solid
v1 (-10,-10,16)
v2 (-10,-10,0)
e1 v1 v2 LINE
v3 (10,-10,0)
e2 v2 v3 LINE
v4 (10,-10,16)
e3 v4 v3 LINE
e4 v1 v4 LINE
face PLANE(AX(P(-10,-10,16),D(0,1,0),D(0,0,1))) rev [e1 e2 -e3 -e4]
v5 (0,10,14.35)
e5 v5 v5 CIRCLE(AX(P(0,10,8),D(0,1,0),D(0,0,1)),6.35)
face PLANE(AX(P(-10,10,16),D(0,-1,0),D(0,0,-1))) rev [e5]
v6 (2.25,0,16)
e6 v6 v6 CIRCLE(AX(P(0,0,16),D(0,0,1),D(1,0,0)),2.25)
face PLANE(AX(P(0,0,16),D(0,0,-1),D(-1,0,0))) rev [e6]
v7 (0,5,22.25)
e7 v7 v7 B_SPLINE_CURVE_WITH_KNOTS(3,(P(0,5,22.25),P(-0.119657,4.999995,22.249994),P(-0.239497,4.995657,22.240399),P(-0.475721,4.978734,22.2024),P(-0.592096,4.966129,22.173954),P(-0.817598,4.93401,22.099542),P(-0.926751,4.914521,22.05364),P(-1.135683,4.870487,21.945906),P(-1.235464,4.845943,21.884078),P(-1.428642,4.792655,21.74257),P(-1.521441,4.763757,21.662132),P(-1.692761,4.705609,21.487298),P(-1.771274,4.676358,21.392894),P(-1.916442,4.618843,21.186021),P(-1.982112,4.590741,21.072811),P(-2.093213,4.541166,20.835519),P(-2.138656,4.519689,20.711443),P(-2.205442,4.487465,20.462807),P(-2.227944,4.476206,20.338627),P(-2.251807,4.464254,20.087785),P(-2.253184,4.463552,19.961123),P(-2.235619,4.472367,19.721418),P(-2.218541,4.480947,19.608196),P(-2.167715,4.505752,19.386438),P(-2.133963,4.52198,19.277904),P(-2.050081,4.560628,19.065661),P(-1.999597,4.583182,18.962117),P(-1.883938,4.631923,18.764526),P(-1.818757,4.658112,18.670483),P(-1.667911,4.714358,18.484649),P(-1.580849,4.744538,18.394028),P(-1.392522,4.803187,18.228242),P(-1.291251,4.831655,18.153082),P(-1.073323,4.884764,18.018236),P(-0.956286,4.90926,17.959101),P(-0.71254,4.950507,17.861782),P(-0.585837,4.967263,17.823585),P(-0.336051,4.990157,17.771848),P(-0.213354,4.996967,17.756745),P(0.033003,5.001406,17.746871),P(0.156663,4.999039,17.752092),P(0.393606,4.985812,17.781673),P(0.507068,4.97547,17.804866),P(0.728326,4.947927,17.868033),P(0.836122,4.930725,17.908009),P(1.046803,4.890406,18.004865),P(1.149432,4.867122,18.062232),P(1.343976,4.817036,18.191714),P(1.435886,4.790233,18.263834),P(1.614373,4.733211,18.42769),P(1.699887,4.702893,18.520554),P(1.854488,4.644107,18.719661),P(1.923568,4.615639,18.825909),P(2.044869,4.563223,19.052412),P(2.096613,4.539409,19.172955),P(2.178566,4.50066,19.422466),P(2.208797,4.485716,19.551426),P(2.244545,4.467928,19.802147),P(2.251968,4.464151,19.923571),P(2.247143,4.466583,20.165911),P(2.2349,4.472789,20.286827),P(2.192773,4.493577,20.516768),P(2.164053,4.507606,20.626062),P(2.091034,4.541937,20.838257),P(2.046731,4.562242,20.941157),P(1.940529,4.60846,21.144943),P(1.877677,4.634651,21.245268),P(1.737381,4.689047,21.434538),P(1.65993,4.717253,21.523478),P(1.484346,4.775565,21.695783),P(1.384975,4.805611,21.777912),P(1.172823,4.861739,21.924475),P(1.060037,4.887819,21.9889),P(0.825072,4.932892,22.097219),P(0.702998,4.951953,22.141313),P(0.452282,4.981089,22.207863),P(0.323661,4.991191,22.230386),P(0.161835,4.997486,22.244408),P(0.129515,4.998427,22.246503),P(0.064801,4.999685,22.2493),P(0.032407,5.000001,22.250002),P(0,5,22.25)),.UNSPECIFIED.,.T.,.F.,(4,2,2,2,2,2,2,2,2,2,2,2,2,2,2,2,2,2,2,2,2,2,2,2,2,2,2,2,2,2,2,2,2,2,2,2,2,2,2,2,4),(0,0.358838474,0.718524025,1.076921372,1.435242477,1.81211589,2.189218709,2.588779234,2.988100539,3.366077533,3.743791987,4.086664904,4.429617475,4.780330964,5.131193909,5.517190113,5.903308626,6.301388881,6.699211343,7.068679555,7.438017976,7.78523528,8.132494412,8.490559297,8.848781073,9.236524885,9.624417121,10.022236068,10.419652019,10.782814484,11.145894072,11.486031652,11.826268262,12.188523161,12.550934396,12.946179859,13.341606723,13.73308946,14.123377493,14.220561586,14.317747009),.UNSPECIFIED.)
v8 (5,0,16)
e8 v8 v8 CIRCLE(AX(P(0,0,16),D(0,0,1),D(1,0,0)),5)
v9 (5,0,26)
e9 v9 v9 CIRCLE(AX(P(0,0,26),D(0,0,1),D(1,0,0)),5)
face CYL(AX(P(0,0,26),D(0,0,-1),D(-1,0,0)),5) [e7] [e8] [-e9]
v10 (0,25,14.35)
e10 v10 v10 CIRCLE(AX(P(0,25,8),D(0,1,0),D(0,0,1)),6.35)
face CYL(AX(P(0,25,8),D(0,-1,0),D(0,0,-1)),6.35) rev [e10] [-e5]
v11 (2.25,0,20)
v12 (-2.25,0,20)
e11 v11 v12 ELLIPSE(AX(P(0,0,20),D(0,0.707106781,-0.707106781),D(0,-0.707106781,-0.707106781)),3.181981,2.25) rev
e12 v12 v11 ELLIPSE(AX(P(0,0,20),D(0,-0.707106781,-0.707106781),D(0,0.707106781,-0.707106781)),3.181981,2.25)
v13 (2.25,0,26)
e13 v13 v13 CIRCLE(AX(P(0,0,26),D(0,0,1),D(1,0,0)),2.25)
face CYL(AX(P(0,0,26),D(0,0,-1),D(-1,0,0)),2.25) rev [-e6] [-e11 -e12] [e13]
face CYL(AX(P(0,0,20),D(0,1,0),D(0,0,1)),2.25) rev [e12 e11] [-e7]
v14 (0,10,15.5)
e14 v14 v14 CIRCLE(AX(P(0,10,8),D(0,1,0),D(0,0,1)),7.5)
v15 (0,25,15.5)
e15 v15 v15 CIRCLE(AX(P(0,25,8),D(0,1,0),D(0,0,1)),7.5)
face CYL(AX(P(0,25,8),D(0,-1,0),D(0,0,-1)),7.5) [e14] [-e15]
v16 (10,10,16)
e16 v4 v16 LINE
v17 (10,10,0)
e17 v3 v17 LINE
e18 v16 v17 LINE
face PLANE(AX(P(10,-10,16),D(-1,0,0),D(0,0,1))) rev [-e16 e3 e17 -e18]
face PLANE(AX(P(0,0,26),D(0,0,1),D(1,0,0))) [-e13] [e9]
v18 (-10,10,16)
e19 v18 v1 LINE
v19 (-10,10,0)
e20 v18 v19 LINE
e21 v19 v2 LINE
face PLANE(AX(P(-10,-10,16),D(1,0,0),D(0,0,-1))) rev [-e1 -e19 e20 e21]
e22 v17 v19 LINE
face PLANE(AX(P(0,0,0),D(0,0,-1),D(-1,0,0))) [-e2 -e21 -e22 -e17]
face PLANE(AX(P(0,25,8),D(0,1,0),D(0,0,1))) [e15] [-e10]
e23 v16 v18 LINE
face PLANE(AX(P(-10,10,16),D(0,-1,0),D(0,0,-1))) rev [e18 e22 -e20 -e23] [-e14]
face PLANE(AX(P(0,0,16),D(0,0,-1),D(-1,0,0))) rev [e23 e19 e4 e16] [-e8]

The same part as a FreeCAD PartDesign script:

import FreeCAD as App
import Part
import Sketcher

V = App.Vector

doc = App.newDocument("Part")
body = doc.addObject("PartDesign::Body", "Body")

sketch1 = doc.addObject("Sketcher::SketchObject", "Sketch")
body.addObject(sketch1)
sketch1.AttachmentSupport = (doc.XY_Plane, [""])
sketch1.MapMode = "FlatFace"
sketch1.addGeometry([
    Part.LineSegment(V(-10, 10, 0), V(-10, -10, 0)),
    Part.LineSegment(V(-10, -10, 0), V(10, -10, 0)),
    Part.LineSegment(V(10, -10, 0), V(10, 10, 0)),
    Part.LineSegment(V(10, 10, 0), V(-10, 10, 0)),
], False)
sketch1.addConstraint([
    Sketcher.Constraint("Coincident", 0, 2, 1, 1),
    Sketcher.Constraint("Coincident", 1, 2, 2, 1),
    Sketcher.Constraint("Coincident", 2, 2, 3, 1),
    Sketcher.Constraint("Coincident", 3, 2, 0, 1),
    Sketcher.Constraint("Vertical", 0),
    Sketcher.Constraint("Horizontal", 1),
    Sketcher.Constraint("Vertical", 2),
    Sketcher.Constraint("Horizontal", 3),
    Sketcher.Constraint("Symmetric", 0, 2, 2, 2, -1, 1),
    Sketcher.Constraint("Equal", 3, 0),
    Sketcher.Constraint("DistanceX", 1, 1, 1, 2, 20.0),
])
pad1 = doc.addObject("PartDesign::Pad", "Pad")
body.addObject(pad1)
pad1.Profile = sketch1
pad1.Length = 16

sketch2 = doc.addObject("Sketcher::SketchObject", "Sketch001")
body.addObject(sketch2)
sketch2.AttachmentSupport = (doc.XY_Plane, [""])
sketch2.MapMode = "FlatFace"
sketch2.AttachmentOffset = App.Placement(V(0, 0, 16), App.Rotation())
sketch2.addGeometry([
    Part.Circle(V(0, 0, 0), V(0, 0, 1), 5),
    Part.Circle(V(0, 0, 0), V(0, 0, 1), 2.2),
], False)
sketch2.addConstraint([
    Sketcher.Constraint("Coincident", 0, 3, -1, 1),
    Sketcher.Constraint("Coincident", 1, 3, -1, 1),
    Sketcher.Constraint("Diameter", 0, 10.0),
    Sketcher.Constraint("Diameter", 1, 4.5),
])
pad2 = doc.addObject("PartDesign::Pad", "Pad001")
body.addObject(pad2)
pad2.Profile = sketch2
pad2.Length = 10

sketch3 = doc.addObject("Sketcher::SketchObject", "Sketch002")
body.addObject(sketch3)
sketch3.AttachmentSupport = (doc.XZ_Plane, [""])
sketch3.MapMode = "FlatFace"
sketch3.AttachmentOffset = App.Placement(V(0, 0, -10), App.Rotation())
sketch3.addGeometry([
    Part.Circle(V(0, 8, 0), V(0, 0, 1), 8),
    Part.Circle(V(0, 8, 0), V(0, 0, 1), 6),
], False)
sketch3.addConstraint([
    Sketcher.Constraint("Coincident", 1, 3, 0, 3),
    Sketcher.Constraint("PointOnObject", 0, 3, -2),
    Sketcher.Constraint("Diameter", 0, 15.0),
    Sketcher.Constraint("Diameter", 1, 12.7),
    Sketcher.Constraint("DistanceY", -1, 1, 0, 3, 8.0),
])
pad3 = doc.addObject("PartDesign::Pad", "Pad002")
body.addObject(pad3)
pad3.Profile = sketch3
pad3.Length = 15
pad3.Reversed = True

sketch4 = doc.addObject("Sketcher::SketchObject", "Sketch003")
body.addObject(sketch4)
sketch4.AttachmentSupport = (doc.XZ_Plane, [""])
sketch4.MapMode = "FlatFace"
sketch4.AttachmentOffset = App.Placement(V(0, 0, -10), App.Rotation())
sketch4.addGeometry(Part.Circle(V(0, 20, 0), V(0, 0, 1), 2.2), False)
sketch4.addConstraint([
    Sketcher.Constraint("PointOnObject", 0, 3, -2),
    Sketcher.Constraint("Diameter", 0, 4.5),
    Sketcher.Constraint("DistanceY", -1, 1, 0, 3, 20.0),
])
pocket1 = doc.addObject("PartDesign::Pocket", "Pocket")
body.addObject(pocket1)
pocket1.Profile = sketch4
pocket1.Length = 10
pocket1.Reversed = True

doc.recompute()
